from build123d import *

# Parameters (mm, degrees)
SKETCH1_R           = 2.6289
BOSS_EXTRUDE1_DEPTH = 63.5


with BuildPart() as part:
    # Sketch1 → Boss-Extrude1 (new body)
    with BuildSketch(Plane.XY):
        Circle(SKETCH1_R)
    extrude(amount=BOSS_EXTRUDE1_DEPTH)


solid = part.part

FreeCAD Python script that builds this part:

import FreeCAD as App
import Part
import Sketcher
from FreeCAD import Vector
Q = App.Units.Quantity

doc = App.newDocument("Part")
body = doc.addObject("PartDesign::Body", "Body")

# Sketch on XY plane
sketch1 = doc.addObject("Sketcher::SketchObject", "Sketch")
body.addObject(sketch1)
sketch1.AttachmentSupport = (doc.XY_Plane, [""])
sketch1.MapMode = "FlatFace"
sketch1.addGeometry(Part.Circle(Vector(0, 0, 0), Vector(0, 0, 1), 2.6289), False)
sketch1.addConstraint([
    Sketcher.Constraint("Coincident", 0, 3, -1, 1),
    Sketcher.Constraint("Diameter", 0, Q("0.207 in")),
])
pad1 = doc.addObject("PartDesign::Pad", "Pad")
body.addObject(pad1)
pad1.Profile = sketch1
pad1.Length = Q("2.5 in")

doc.recompute()
